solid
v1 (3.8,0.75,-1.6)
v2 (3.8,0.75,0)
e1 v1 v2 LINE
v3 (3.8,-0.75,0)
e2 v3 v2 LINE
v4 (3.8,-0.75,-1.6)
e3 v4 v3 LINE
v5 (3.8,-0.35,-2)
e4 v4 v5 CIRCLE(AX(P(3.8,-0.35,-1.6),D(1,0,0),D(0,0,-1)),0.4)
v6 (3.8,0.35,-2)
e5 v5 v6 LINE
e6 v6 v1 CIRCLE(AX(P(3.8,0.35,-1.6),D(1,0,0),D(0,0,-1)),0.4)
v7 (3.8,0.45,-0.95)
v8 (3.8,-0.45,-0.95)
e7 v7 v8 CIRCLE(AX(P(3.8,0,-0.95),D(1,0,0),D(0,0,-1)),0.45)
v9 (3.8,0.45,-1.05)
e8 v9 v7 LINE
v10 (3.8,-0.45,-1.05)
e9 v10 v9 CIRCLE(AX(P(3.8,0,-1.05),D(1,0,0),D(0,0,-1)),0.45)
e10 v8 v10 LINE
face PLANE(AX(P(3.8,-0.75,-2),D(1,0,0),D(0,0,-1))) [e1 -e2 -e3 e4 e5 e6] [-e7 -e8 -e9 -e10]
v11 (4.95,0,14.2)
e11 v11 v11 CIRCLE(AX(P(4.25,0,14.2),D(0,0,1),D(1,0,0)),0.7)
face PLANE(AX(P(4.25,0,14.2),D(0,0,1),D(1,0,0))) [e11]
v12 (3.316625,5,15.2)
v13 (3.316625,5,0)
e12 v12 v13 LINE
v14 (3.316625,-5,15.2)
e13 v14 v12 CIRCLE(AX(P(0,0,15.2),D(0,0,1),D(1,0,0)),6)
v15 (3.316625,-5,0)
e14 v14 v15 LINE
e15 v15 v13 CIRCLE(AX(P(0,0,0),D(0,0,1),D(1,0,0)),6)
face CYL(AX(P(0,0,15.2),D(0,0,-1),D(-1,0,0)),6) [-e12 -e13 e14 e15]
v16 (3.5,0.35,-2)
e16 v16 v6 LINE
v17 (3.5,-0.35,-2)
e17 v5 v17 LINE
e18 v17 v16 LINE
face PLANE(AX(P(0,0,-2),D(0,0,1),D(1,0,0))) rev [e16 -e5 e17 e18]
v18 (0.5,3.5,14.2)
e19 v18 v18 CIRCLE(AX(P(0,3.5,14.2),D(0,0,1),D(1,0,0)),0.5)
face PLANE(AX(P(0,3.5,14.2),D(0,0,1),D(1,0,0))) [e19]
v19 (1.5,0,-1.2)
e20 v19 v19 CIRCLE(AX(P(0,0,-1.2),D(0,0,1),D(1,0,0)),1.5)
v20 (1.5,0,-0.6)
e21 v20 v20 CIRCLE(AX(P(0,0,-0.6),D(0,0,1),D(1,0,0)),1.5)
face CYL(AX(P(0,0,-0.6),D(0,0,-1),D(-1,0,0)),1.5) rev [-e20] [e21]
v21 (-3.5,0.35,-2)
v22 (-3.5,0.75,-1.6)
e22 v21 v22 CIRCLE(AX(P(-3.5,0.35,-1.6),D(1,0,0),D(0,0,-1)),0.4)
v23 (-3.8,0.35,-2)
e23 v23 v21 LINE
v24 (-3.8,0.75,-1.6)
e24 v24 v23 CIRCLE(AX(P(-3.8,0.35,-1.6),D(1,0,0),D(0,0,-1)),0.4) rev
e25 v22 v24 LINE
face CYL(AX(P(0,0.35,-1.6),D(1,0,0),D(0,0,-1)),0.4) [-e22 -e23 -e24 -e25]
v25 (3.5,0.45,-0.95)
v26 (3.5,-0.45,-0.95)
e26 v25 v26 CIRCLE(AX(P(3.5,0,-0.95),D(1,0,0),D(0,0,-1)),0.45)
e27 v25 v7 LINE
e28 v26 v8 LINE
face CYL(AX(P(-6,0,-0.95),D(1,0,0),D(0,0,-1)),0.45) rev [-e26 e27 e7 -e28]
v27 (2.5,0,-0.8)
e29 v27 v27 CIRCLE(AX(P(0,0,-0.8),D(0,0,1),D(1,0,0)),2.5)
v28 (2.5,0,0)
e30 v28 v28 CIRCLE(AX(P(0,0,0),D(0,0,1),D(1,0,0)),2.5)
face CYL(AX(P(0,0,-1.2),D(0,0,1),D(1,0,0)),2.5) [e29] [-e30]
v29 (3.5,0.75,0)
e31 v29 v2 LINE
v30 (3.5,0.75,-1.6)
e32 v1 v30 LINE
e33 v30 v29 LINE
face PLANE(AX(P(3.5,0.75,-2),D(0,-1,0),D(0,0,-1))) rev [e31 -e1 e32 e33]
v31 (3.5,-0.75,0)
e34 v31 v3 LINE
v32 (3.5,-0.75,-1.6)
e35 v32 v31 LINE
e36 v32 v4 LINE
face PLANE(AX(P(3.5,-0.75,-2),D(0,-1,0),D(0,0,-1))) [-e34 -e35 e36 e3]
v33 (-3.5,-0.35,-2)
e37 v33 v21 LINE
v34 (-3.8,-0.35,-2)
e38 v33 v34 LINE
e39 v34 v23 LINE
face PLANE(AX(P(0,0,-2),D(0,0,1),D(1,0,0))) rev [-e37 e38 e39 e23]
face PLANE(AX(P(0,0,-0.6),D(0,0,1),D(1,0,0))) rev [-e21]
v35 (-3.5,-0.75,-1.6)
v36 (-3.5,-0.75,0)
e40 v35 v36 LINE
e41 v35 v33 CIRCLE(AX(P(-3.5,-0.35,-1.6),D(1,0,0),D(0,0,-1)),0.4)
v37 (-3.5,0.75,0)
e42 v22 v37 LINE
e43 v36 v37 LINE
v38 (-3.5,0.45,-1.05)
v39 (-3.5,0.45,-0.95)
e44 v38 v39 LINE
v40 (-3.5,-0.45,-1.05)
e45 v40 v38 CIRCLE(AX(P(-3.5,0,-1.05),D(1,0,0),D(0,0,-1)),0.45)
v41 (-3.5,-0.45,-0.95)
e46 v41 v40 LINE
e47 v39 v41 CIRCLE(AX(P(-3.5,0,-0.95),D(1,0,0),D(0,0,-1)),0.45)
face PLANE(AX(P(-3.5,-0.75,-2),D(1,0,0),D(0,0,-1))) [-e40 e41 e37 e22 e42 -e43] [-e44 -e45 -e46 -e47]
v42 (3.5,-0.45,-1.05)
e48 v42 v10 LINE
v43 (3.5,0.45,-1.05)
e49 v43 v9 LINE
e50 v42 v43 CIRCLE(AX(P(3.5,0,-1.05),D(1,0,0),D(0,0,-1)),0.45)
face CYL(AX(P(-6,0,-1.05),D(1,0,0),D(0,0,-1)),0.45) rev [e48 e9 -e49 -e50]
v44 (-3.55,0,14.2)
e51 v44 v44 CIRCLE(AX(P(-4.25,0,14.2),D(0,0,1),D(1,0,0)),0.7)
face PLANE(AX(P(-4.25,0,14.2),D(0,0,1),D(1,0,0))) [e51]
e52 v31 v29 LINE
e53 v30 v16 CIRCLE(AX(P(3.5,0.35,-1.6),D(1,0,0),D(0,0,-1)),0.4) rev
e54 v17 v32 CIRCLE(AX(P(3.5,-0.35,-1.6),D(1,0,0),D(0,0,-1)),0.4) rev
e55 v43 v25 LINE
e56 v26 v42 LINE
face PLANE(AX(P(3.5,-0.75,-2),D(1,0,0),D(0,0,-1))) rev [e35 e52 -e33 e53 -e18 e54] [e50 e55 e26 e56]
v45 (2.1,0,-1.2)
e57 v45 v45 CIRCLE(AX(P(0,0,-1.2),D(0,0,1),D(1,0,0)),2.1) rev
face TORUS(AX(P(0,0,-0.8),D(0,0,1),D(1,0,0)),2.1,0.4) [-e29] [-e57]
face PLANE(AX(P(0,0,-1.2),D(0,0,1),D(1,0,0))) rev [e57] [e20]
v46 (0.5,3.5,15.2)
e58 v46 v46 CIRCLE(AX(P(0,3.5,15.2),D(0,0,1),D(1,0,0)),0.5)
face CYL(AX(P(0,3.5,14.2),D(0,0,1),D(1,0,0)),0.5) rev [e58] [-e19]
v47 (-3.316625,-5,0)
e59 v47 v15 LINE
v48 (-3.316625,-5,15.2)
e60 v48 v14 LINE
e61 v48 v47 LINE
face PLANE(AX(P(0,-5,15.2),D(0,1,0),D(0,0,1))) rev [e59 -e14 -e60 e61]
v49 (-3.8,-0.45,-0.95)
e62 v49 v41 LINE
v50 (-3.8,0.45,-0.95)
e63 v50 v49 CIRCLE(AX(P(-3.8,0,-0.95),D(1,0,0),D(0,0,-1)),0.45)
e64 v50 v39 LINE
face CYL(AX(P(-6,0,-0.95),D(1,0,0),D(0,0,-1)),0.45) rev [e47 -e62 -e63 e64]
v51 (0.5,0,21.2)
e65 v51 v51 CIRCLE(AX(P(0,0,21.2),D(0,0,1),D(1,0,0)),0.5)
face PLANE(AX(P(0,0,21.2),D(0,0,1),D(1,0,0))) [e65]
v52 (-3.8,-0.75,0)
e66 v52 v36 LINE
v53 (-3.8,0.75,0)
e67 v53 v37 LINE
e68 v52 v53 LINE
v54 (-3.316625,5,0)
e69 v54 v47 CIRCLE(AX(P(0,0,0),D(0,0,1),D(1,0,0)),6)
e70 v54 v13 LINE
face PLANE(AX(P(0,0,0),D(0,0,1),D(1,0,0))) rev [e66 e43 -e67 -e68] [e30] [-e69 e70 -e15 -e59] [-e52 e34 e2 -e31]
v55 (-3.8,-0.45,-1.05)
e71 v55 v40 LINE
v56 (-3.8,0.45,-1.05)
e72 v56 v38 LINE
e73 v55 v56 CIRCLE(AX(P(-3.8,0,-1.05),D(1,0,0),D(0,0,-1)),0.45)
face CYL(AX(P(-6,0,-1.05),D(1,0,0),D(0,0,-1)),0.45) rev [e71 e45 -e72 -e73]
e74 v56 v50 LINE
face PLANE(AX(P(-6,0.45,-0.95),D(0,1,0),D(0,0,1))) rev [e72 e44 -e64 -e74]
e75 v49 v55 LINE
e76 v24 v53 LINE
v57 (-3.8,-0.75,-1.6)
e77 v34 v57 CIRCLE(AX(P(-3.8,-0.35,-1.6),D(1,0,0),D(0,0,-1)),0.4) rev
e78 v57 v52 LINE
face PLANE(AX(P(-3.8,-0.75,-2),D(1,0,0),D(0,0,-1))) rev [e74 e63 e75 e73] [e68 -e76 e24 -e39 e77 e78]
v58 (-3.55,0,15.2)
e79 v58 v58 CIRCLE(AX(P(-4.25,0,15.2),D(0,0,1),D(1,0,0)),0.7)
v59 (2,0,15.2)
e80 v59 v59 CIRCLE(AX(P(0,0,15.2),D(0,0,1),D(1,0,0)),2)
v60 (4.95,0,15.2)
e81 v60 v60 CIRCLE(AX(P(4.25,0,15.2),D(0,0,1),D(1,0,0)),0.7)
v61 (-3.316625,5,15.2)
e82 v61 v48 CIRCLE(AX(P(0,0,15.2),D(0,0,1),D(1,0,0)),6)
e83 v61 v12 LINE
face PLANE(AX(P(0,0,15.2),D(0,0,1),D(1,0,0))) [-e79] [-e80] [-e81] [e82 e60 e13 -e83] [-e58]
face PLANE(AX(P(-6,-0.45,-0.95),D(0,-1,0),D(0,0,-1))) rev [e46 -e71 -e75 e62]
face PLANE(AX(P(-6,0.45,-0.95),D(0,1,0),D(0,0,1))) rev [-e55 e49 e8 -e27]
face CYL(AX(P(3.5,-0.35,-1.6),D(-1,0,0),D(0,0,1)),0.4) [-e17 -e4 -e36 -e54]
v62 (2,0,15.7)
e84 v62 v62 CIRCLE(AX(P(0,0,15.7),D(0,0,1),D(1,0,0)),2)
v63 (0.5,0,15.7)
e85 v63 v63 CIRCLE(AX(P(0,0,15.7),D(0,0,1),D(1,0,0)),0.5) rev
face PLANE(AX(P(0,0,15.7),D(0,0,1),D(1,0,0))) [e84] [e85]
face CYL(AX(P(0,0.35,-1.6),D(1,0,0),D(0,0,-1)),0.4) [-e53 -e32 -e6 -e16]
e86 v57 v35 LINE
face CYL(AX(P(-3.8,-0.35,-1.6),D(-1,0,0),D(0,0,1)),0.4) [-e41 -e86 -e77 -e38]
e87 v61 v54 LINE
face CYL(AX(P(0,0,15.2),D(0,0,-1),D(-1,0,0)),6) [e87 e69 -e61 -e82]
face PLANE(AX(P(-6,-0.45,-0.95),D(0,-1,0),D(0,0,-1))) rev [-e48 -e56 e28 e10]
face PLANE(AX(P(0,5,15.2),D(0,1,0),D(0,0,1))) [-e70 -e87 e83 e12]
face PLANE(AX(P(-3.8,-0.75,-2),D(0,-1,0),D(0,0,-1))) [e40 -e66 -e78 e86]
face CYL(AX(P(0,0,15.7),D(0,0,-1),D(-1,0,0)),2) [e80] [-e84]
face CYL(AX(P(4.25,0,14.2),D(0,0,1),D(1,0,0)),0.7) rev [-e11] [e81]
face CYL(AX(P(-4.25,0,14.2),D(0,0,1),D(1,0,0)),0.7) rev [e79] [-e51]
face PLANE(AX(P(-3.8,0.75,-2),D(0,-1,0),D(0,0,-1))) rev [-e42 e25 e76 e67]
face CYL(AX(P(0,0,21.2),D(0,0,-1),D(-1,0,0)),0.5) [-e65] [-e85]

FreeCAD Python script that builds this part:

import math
import FreeCAD as App
import Part
import Sketcher
from FreeCAD import Vector
Q = App.Units.Quantity


def edges_at(feature, points):
    """Names of the edges that pass closest to the given points."""
    edges = feature.Shape.Edges
    near = lambda p: min(range(len(edges)), key=lambda i: edges[i].distToShape(Part.Vertex(*p))[0])
    return sorted({f"Edge{near(p) + 1}" for p in points})

doc = App.newDocument("Part")
params = doc.addObject("Spreadsheet::Sheet", "Params")
for row, (alias, value) in enumerate([
    ("sketch1_radius", "6 mm"),
    ("pad1_length", "15.2 mm"),
    ("sketch2_width", "0.3 mm"),
    ("sketch2_height", "1.5 mm"),
    ("pad2_length", "2 mm"),
    ("sketch3_radius", "0.45 mm"),
    ("sketch3_height", "0.1 mm"),
    ("fillet_radius", "0.4 mm"),
    ("sketch4_diameter", "5 mm"),
    ("pad3_length", "1.2 mm"),
    ("sketch5_diameter", "3 mm"),
    ("pocket2_length", "0.6 mm"),
    ("fillet2_radius", "0.4 mm"),
    ("sketch6_diameter", "4 mm"),
    ("pad4_length", "0.5 mm"),
    ("sketch7_diameter", "1 mm"),
    ("pad5_length", "6 mm"),
    ("sketch8_diameter", "1 mm"),
    ("sketch8_diameter2", "1.4 mm"),
    ("pocket3_length", "1 mm"),
], start=1):
    params.set(f"A{row}", alias)
    params.set(f"B{row}", "=" + value)
    params.setAlias(f"B{row}", alias)

body = doc.addObject("PartDesign::Body", "Body")

sketch1 = body.newObject("Sketcher::SketchObject", "Sketch")
sketch1.AttachmentSupport = (doc.getObject("XY_Plane"), [""])
sketch1.MapMode = "FlatFace"
sketch1.addGeometry(Part.ArcOfCircle(Part.Circle(Vector(0, 0, 0), Vector(0, 0, 1), 6), math.radians(180), math.radians(236)), False)
sketch1.addGeometry(Part.LineSegment(Vector(-3, -5, 0), Vector(3, -5, 0)), False)
sketch1.addGeometry(Part.ArcOfCircle(Part.Circle(Vector(0, 0, 0), Vector(0, 0, 1), 6), math.radians(-56), math.radians(0)), False)
sketch1.addGeometry(Part.ArcOfCircle(Part.Circle(Vector(0, 0, 0), Vector(0, 0, 1), 6), math.radians(0), math.radians(56)), False)
sketch1.addGeometry(Part.LineSegment(Vector(3, 5, 0), Vector(-3, 5, 0)), False)
sketch1.addGeometry(Part.ArcOfCircle(Part.Circle(Vector(0, 0, 0), Vector(0, 0, 1), 6), math.radians(124), math.radians(180)), False)
sketch1.addConstraint(Sketcher.Constraint("Coincident", 0, 2, 1, 1))
sketch1.addConstraint(Sketcher.Constraint("Coincident", 1, 2, 2, 1))
sketch1.addConstraint(Sketcher.Constraint("Tangent", 2, 2, 3, 1))
sketch1.addConstraint(Sketcher.Constraint("Coincident", 3, 2, 4, 1))
sketch1.addConstraint(Sketcher.Constraint("Coincident", 4, 2, 5, 1))
sketch1.addConstraint(Sketcher.Constraint("Tangent", 5, 2, 0, 1))
sketch1.addConstraint(Sketcher.Constraint("Horizontal", 1))
sketch1.addConstraint(Sketcher.Constraint("Horizontal", 4))
sketch1.addConstraint(Sketcher.Constraint("Coincident", 0, 3, -1, 1))
sketch1.addConstraint(Sketcher.Constraint("Coincident", 2, 3, -1, 1))
sketch1.addConstraint(Sketcher.Constraint("Equal", 0, 2))
sketch1.addConstraint(Sketcher.Constraint("Equal", 2, 3))
sketch1.addConstraint(Sketcher.Constraint("Equal", 3, 5))
sketch1.addConstraint(Sketcher.Constraint("PointOnObject", 2, 2, -1))
sketch1.addConstraint(Sketcher.Constraint("PointOnObject", 5, 2, -1))
sketch1.addConstraint(Sketcher.Constraint("Vertical", 1, 2, 3, 2))
sketch1.addConstraint(Sketcher.Constraint("Radius", 0, Q("6 mm")))
sketch1.addConstraint(Sketcher.Constraint("DistanceY", 0, 2, -1, 1, Q("5 mm")))
sketch1.setExpression("Constraints[16]", "Params.sketch1_radius")
pad1 = body.newObject("PartDesign::Pad", "Pad")
pad1.Profile = sketch1
pad1.setExpression("Length", "Params.pad1_length")

sketch2 = body.newObject("Sketcher::SketchObject", "Sketch001")
sketch2.AttachmentSupport = (doc.getObject("XY_Plane"), [""])
sketch2.MapMode = "FlatFace"
sketch2.addGeometry(Part.LineSegment(Vector(3.5, 0.75, 0), Vector(3.5, -0.75, 0)), False)
sketch2.addGeometry(Part.LineSegment(Vector(3.5, -0.75, 0), Vector(3.8, -0.75, 0)), False)
sketch2.addGeometry(Part.LineSegment(Vector(3.8, -0.75, 0), Vector(3.8, 0.75, 0)), False)
sketch2.addGeometry(Part.LineSegment(Vector(3.8, 0.75, 0), Vector(3.5, 0.75, 0)), False)
sketch2.addGeometry(Part.LineSegment(Vector(-3.8, 0.75, 0), Vector(-3.8, -0.75, 0)), False)
sketch2.addGeometry(Part.LineSegment(Vector(-3.8, -0.75, 0), Vector(-3.5, -0.75, 0)), False)
sketch2.addGeometry(Part.LineSegment(Vector(-3.5, -0.75, 0), Vector(-3.5, 0.75, 0)), False)
sketch2.addGeometry(Part.LineSegment(Vector(-3.5, 0.75, 0), Vector(-3.8, 0.75, 0)), False)
sketch2.addConstraint(Sketcher.Constraint("Coincident", 0, 2, 1, 1))
sketch2.addConstraint(Sketcher.Constraint("Coincident", 1, 2, 2, 1))
sketch2.addConstraint(Sketcher.Constraint("Coincident", 2, 2, 3, 1))
sketch2.addConstraint(Sketcher.Constraint("Coincident", 3, 2, 0, 1))
sketch2.addConstraint(Sketcher.Constraint("Coincident", 4, 2, 5, 1))
sketch2.addConstraint(Sketcher.Constraint("Coincident", 5, 2, 6, 1))
sketch2.addConstraint(Sketcher.Constraint("Coincident", 6, 2, 7, 1))
sketch2.addConstraint(Sketcher.Constraint("Coincident", 7, 2, 4, 1))
sketch2.addConstraint(Sketcher.Constraint("Vertical", 0))
sketch2.addConstraint(Sketcher.Constraint("Horizontal", 1))
sketch2.addConstraint(Sketcher.Constraint("Vertical", 2))
sketch2.addConstraint(Sketcher.Constraint("Horizontal", 3))
sketch2.addConstraint(Sketcher.Constraint("Vertical", 4))
sketch2.addConstraint(Sketcher.Constraint("Horizontal", 5))
sketch2.addConstraint(Sketcher.Constraint("Vertical", 6))
sketch2.addConstraint(Sketcher.Constraint("Horizontal", 7))
sketch2.addConstraint(Sketcher.Constraint("Symmetric", 2, 2, 4, 2, -1, 1))
sketch2.addConstraint(Sketcher.Constraint("Symmetric", 0, 2, 6, 2, -1, 1))
sketch2.addConstraint(Sketcher.Constraint("Horizontal", 1, 2, 4, 2))
sketch2.addConstraint(Sketcher.Constraint("DistanceX", 1, 1, 1, 2, Q("0.3 mm")))
sketch2.addConstraint(Sketcher.Constraint("DistanceY", 0, 2, 0, 1, Q("1.5 mm")))
sketch2.addConstraint(Sketcher.Constraint("DistanceX", 5, 2, 0, 2, Q("7 mm")))
sketch2.setExpression("Constraints[19]", "Params.sketch2_width")
sketch2.setExpression("Constraints[20]", "Params.sketch2_height")
pad2 = body.newObject("PartDesign::Pad", "Pad001")
pad2.Profile = sketch2
pad2.setExpression("Length", "Params.pad2_length")
pad2.Reversed = True

sketch3 = body.newObject("Sketcher::SketchObject", "Sketch002")
sketch3.AttachmentSupport = (doc.getObject("YZ_Plane"), [""])
sketch3.MapMode = "FlatFace"
sketch3.AttachmentOffset = App.Placement(Vector(0, 0, 3.8), App.Rotation())
sketch3.addGeometry(Part.LineSegment(Vector(0.45, -1.05, 0), Vector(0.45, -0.95, 0)), False)
sketch3.addGeometry(Part.ArcOfCircle(Part.Circle(Vector(0, -0.95, 0), Vector(0, 0, 1), 0.45), math.radians(0), math.radians(180)), False)
sketch3.addGeometry(Part.LineSegment(Vector(-0.45, -0.95, 0), Vector(-0.45, -1.05, 0)), False)
sketch3.addGeometry(Part.ArcOfCircle(Part.Circle(Vector(0, -1.05, 0), Vector(0, 0, 1), 0.45), math.radians(180), math.radians(360)), False)
sketch3.addConstraint(Sketcher.Constraint("Tangent", 0, 2, 1, 1))
sketch3.addConstraint(Sketcher.Constraint("Tangent", 1, 2, 2, 1))
sketch3.addConstraint(Sketcher.Constraint("Tangent", 2, 2, 3, 1))
sketch3.addConstraint(Sketcher.Constraint("Tangent", 3, 2, 0, 1))
sketch3.addConstraint(Sketcher.Constraint("Vertical", 0))
sketch3.addConstraint(Sketcher.Constraint("Vertical", 2))
sketch3.addConstraint(Sketcher.Constraint("PointOnObject", 1, 3, -2))
sketch3.addConstraint(Sketcher.Constraint("Radius", 1, Q("0.45 mm")))
sketch3.addConstraint(Sketcher.Constraint("DistanceY", 0, 1, 0, 2, Q("0.1 mm")))
sketch3.addConstraint(Sketcher.Constraint("DistanceY", 1, 3, -1, 1, Q("0.95 mm")))
sketch3.setExpression("Constraints[7]", "Params.sketch3_radius")
sketch3.setExpression("Constraints[8]", "Params.sketch3_height")
pocket1 = body.newObject("PartDesign::Pocket", "Pocket")
pocket1.Profile = sketch3
pocket1.Type = "ThroughAll"
doc.recompute()

fillet = body.newObject("PartDesign::Fillet", "Fillet")
fillet.Base = (pocket1, edges_at(pocket1, [
    (3.65, -0.75, -2),
    (3.65, 0.75, -2),
    (-3.65, -0.75, -2),
    (-3.65, 0.75, -2),
]))
fillet.setExpression("Radius", "Params.fillet_radius")

sketch4 = body.newObject("Sketcher::SketchObject", "Sketch003")
sketch4.AttachmentSupport = (doc.getObject("XY_Plane"), [""])
sketch4.MapMode = "FlatFace"
sketch4.addGeometry(Part.Circle(Vector(0, 0, 0), Vector(0, 0, 1), 2.5), False)
sketch4.addConstraint(Sketcher.Constraint("Coincident", 0, 3, -1, 1))
sketch4.addConstraint(Sketcher.Constraint("Diameter", 0, Q("5 mm")))
sketch4.setExpression("Constraints[1]", "Params.sketch4_diameter")
pad3 = body.newObject("PartDesign::Pad", "Pad002")
pad3.Profile = sketch4
pad3.setExpression("Length", "Params.pad3_length")
pad3.Reversed = True

sketch5 = body.newObject("Sketcher::SketchObject", "Sketch004")
sketch5.AttachmentSupport = (doc.getObject("XY_Plane"), [""])
sketch5.MapMode = "FlatFace"
sketch5.AttachmentOffset = App.Placement(Vector(0, 0, -1.2), App.Rotation())
sketch5.addGeometry(Part.Circle(Vector(0, 0, 0), Vector(0, 0, 1), 1.5), False)
sketch5.addConstraint(Sketcher.Constraint("Coincident", 0, 3, -1, 1))
sketch5.addConstraint(Sketcher.Constraint("Diameter", 0, Q("3 mm")))
sketch5.setExpression("Constraints[1]", "Params.sketch5_diameter")
pocket2 = body.newObject("PartDesign::Pocket", "Pocket001")
pocket2.Profile = sketch5
pocket2.setExpression("Length", "Params.pocket2_length")
pocket2.Reversed = True
doc.recompute()

fillet2 = body.newObject("PartDesign::Fillet", "Fillet001")
fillet2.Base = (pocket2, edges_at(pocket2, [(-2.5, 0, -1.2)]))
fillet2.setExpression("Radius", "Params.fillet2_radius")

sketch6 = body.newObject("Sketcher::SketchObject", "Sketch005")
sketch6.AttachmentSupport = (doc.getObject("XY_Plane"), [""])
sketch6.MapMode = "FlatFace"
sketch6.AttachmentOffset = App.Placement(Vector(0, 0, 15.2), App.Rotation())
sketch6.addGeometry(Part.Circle(Vector(0, 0, 0), Vector(0, 0, 1), 2), False)
sketch6.addConstraint(Sketcher.Constraint("Coincident", 0, 3, -1, 1))
sketch6.addConstraint(Sketcher.Constraint("Diameter", 0, Q("4 mm")))
sketch6.setExpression("Constraints[1]", "Params.sketch6_diameter")
pad4 = body.newObject("PartDesign::Pad", "Pad003")
pad4.Profile = sketch6
pad4.setExpression("Length", "Params.pad4_length")

sketch7 = body.newObject("Sketcher::SketchObject", "Sketch006")
sketch7.AttachmentSupport = (doc.getObject("XY_Plane"), [""])
sketch7.MapMode = "FlatFace"
sketch7.AttachmentOffset = App.Placement(Vector(0, 0, 15.2), App.Rotation())
sketch7.addGeometry(Part.Circle(Vector(0, 0, 0), Vector(0, 0, 1), 0.5), False)
sketch7.addConstraint(Sketcher.Constraint("Coincident", 0, 3, -1, 1))
sketch7.addConstraint(Sketcher.Constraint("Diameter", 0, Q("1 mm")))
sketch7.setExpression("Constraints[1]", "Params.sketch7_diameter")
pad5 = body.newObject("PartDesign::Pad", "Pad004")
pad5.Profile = sketch7
pad5.setExpression("Length", "Params.pad5_length")

sketch8 = body.newObject("Sketcher::SketchObject", "Sketch007")
sketch8.AttachmentSupport = (doc.getObject("XY_Plane"), [""])
sketch8.MapMode = "FlatFace"
sketch8.AttachmentOffset = App.Placement(Vector(0, 0, 15.2), App.Rotation())
sketch8.addGeometry(Part.Circle(Vector(-4.2, 0, 0), Vector(0, 0, 1), 0.7), False)
sketch8.addGeometry(Part.Circle(Vector(4.2, 0, 0), Vector(0, 0, 1), 0.7), False)
sketch8.addGeometry(Part.Circle(Vector(0, 3.5, 0), Vector(0, 0, 1), 0.5), False)
sketch8.addConstraint(Sketcher.Constraint("Equal", 0, 1))
sketch8.addConstraint(Sketcher.Constraint("Symmetric", 0, 3, 1, 3, -1, 1))
sketch8.addConstraint(Sketcher.Constraint("PointOnObject", 0, 3, -1))
sketch8.addConstraint(Sketcher.Constraint("PointOnObject", 2, 3, -2))
sketch8.addConstraint(Sketcher.Constraint("Diameter", 2, Q("1 mm")))
sketch8.addConstraint(Sketcher.Constraint("Diameter", 0, Q("1.4 mm")))
sketch8.addConstraint(Sketcher.Constraint("DistanceY", -1, 1, 2, 3, Q("3.5 mm")))
sketch8.addConstraint(Sketcher.Constraint("DistanceX", 0, 3, 1, 3, Q("8.5 mm")))
sketch8.setExpression("Constraints[4]", "Params.sketch8_diameter")
sketch8.setExpression("Constraints[5]", "Params.sketch8_diameter2")
pocket3 = body.newObject("PartDesign::Pocket", "Pocket002")
pocket3.Profile = sketch8
pocket3.setExpression("Length", "Params.pocket3_length")

doc.recompute()
